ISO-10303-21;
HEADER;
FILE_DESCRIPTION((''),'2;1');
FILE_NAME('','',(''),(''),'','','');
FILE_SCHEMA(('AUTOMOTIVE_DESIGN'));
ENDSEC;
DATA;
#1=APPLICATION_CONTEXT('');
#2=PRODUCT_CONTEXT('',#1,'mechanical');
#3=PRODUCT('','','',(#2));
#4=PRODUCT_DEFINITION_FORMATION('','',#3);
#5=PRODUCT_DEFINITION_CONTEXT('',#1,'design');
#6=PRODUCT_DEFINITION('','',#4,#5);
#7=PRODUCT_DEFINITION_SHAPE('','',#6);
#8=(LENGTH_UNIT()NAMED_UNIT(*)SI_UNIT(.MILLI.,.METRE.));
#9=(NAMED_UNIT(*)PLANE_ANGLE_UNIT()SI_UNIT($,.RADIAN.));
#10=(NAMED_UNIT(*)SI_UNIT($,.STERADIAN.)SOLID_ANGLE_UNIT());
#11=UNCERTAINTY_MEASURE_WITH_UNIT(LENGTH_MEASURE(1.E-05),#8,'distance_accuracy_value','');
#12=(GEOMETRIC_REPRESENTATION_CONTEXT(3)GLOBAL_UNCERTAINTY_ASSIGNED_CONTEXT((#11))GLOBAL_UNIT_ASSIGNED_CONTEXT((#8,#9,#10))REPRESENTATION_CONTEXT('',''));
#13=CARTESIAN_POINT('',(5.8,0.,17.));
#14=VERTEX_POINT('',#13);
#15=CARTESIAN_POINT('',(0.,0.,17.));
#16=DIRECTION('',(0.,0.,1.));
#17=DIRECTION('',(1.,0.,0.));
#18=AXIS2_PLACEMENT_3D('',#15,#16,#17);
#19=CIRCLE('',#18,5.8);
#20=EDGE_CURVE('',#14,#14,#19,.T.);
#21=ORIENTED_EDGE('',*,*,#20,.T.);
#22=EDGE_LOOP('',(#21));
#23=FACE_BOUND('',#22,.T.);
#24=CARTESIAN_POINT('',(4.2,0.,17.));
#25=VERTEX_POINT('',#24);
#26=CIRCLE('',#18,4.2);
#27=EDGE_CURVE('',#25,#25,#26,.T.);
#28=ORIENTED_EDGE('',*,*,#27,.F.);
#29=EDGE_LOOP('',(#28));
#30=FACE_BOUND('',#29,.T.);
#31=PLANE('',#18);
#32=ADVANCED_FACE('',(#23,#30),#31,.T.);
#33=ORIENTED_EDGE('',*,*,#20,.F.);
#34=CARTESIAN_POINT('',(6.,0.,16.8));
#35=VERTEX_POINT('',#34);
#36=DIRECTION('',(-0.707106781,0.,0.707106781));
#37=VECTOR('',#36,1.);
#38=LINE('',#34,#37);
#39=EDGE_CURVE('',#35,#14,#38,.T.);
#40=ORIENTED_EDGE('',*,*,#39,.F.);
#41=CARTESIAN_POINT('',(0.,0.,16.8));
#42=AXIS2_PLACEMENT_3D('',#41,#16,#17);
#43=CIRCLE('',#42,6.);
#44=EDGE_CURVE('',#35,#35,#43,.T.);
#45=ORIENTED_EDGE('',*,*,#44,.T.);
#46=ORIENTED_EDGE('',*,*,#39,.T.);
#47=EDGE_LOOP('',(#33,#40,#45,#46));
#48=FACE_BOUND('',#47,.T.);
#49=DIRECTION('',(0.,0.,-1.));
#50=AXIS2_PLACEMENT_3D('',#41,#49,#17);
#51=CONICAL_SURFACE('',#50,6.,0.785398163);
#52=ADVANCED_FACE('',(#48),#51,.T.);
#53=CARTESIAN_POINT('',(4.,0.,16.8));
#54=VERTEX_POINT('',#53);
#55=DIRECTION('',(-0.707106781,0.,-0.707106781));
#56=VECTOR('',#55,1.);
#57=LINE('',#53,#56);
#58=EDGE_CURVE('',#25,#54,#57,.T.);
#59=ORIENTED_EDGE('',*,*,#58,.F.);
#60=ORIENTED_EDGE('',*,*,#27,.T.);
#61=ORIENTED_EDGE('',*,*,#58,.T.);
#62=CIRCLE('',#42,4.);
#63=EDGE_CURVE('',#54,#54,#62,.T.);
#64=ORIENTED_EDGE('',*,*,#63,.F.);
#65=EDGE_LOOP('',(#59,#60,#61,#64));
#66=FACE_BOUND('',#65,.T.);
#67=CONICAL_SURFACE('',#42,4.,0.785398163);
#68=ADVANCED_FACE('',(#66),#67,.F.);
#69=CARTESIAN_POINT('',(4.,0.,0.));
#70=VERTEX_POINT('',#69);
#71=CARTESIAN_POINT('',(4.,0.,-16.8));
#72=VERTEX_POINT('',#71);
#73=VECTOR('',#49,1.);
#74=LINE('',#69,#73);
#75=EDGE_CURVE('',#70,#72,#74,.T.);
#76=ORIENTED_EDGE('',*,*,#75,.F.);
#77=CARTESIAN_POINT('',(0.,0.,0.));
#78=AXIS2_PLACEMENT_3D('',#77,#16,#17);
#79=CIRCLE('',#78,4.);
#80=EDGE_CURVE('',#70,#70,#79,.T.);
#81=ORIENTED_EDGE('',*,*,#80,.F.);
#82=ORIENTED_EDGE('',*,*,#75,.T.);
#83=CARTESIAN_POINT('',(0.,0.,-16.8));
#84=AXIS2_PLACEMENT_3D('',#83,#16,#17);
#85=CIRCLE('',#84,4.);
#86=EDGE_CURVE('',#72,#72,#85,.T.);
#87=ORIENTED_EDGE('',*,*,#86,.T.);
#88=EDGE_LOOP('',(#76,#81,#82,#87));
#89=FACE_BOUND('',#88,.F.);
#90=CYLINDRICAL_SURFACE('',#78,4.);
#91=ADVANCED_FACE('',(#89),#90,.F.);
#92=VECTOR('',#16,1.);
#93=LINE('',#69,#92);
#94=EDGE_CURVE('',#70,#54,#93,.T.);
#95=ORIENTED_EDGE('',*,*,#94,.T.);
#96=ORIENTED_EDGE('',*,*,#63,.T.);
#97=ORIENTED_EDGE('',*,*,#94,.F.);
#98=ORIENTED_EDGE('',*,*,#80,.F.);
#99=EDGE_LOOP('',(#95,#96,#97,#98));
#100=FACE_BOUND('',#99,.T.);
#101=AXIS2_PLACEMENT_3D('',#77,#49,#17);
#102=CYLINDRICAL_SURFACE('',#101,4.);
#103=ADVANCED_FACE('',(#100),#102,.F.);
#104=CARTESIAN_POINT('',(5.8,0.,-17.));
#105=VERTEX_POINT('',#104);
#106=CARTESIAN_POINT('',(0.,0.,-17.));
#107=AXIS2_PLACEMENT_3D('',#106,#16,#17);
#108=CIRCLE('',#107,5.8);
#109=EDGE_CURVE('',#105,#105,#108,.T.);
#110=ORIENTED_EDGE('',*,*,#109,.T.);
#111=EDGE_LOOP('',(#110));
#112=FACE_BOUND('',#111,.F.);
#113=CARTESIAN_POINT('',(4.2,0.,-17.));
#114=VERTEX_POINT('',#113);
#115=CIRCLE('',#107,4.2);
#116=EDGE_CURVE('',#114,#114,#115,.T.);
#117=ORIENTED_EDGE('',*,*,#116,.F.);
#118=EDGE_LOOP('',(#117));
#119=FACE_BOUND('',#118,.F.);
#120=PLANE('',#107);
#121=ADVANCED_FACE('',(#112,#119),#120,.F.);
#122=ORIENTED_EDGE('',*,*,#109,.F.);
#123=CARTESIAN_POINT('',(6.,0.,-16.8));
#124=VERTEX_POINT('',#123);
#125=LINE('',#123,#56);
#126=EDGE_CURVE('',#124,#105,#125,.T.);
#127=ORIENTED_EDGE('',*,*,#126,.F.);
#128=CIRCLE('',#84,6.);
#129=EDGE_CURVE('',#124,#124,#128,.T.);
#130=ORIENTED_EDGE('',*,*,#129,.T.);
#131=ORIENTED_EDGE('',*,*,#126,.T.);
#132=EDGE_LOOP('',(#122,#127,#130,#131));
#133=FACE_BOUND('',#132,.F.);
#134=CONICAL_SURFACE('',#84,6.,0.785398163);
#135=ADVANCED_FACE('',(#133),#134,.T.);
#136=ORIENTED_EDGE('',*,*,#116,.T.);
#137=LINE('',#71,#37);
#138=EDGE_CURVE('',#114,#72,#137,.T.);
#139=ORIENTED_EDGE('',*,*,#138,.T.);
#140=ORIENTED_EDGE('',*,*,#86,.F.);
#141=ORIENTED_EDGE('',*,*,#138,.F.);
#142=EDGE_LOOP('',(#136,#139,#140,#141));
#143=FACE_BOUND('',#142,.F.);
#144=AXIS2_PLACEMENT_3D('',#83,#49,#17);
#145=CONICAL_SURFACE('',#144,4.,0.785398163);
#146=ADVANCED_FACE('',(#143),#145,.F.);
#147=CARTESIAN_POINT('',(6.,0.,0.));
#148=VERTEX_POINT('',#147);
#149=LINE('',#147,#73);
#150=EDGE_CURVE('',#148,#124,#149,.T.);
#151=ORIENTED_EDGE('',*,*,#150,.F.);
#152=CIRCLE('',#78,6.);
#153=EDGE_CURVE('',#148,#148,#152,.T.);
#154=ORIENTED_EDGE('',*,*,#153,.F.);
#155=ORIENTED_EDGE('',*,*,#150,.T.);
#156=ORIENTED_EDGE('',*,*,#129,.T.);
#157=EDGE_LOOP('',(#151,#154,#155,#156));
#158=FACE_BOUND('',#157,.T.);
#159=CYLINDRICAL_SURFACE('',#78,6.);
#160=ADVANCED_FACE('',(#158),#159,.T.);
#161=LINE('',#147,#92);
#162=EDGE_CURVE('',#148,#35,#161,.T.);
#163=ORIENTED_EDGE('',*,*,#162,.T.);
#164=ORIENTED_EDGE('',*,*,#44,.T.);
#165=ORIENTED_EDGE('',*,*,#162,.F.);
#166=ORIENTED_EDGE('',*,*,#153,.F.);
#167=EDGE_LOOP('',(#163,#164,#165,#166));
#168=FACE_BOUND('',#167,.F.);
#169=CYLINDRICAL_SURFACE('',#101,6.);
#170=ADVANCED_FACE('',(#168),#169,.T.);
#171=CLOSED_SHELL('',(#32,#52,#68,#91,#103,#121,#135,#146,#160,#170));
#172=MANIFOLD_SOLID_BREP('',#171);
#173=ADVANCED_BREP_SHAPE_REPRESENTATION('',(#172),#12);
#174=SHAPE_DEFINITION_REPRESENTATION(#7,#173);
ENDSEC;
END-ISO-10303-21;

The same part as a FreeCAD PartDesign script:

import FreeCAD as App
import Part
import Sketcher
from FreeCAD import Vector
Q = App.Units.Quantity


def edges_at(feature, points):
    """Names of the edges that pass closest to the given points."""
    edges = feature.Shape.Edges
    near = lambda p: min(range(len(edges)), key=lambda i: edges[i].distToShape(Part.Vertex(*p))[0])
    return sorted({f"Edge{near(p) + 1}" for p in points})

doc = App.newDocument("Part")
params = doc.addObject("Spreadsheet::Sheet", "Params")
for row, (alias, value) in enumerate([
    ("sketch1_diameter", "12 mm"),
    ("sketch1_diameter2", "8 mm"),
    ("pad1_length", "34 mm"),
    ("chamfer_size", "0.2 mm"),
], start=1):
    params.set(f"A{row}", alias)
    params.set(f"B{row}", "=" + value)
    params.setAlias(f"B{row}", alias)

body = doc.addObject("PartDesign::Body", "Body")

sketch1 = body.newObject("Sketcher::SketchObject", "Sketch")
sketch1.AttachmentSupport = (doc.getObject("XY_Plane"), [""])
sketch1.MapMode = "FlatFace"
sketch1.addGeometry(Part.Circle(Vector(0, 0, 0), Vector(0, 0, 1), 6), False)
sketch1.addGeometry(Part.Circle(Vector(0, 0, 0), Vector(0, 0, 1), 4), False)
sketch1.addConstraint(Sketcher.Constraint("Coincident", 0, 3, -1, 1))
sketch1.addConstraint(Sketcher.Constraint("Coincident", 1, 3, -1, 1))
sketch1.addConstraint(Sketcher.Constraint("Diameter", 0, Q("12 mm")))
sketch1.addConstraint(Sketcher.Constraint("Diameter", 1, Q("8 mm")))
sketch1.setExpression("Constraints[2]", "Params.sketch1_diameter")
sketch1.setExpression("Constraints[3]", "Params.sketch1_diameter2")
pad1 = body.newObject("PartDesign::Pad", "Pad")
pad1.Profile = sketch1
pad1.setExpression("Length", "Params.pad1_length")
pad1.Midplane = True
doc.recompute()

chamfer = body.newObject("PartDesign::Chamfer", "Chamfer")
chamfer.Base = (pad1, edges_at(pad1, [
    (-6, 0, 17),
    (-4, 0, 17),
    (-6, 0, -17),
    (-4, 0, -17),
]))
chamfer.setExpression("Size", "Params.chamfer_size")

doc.recompute()
